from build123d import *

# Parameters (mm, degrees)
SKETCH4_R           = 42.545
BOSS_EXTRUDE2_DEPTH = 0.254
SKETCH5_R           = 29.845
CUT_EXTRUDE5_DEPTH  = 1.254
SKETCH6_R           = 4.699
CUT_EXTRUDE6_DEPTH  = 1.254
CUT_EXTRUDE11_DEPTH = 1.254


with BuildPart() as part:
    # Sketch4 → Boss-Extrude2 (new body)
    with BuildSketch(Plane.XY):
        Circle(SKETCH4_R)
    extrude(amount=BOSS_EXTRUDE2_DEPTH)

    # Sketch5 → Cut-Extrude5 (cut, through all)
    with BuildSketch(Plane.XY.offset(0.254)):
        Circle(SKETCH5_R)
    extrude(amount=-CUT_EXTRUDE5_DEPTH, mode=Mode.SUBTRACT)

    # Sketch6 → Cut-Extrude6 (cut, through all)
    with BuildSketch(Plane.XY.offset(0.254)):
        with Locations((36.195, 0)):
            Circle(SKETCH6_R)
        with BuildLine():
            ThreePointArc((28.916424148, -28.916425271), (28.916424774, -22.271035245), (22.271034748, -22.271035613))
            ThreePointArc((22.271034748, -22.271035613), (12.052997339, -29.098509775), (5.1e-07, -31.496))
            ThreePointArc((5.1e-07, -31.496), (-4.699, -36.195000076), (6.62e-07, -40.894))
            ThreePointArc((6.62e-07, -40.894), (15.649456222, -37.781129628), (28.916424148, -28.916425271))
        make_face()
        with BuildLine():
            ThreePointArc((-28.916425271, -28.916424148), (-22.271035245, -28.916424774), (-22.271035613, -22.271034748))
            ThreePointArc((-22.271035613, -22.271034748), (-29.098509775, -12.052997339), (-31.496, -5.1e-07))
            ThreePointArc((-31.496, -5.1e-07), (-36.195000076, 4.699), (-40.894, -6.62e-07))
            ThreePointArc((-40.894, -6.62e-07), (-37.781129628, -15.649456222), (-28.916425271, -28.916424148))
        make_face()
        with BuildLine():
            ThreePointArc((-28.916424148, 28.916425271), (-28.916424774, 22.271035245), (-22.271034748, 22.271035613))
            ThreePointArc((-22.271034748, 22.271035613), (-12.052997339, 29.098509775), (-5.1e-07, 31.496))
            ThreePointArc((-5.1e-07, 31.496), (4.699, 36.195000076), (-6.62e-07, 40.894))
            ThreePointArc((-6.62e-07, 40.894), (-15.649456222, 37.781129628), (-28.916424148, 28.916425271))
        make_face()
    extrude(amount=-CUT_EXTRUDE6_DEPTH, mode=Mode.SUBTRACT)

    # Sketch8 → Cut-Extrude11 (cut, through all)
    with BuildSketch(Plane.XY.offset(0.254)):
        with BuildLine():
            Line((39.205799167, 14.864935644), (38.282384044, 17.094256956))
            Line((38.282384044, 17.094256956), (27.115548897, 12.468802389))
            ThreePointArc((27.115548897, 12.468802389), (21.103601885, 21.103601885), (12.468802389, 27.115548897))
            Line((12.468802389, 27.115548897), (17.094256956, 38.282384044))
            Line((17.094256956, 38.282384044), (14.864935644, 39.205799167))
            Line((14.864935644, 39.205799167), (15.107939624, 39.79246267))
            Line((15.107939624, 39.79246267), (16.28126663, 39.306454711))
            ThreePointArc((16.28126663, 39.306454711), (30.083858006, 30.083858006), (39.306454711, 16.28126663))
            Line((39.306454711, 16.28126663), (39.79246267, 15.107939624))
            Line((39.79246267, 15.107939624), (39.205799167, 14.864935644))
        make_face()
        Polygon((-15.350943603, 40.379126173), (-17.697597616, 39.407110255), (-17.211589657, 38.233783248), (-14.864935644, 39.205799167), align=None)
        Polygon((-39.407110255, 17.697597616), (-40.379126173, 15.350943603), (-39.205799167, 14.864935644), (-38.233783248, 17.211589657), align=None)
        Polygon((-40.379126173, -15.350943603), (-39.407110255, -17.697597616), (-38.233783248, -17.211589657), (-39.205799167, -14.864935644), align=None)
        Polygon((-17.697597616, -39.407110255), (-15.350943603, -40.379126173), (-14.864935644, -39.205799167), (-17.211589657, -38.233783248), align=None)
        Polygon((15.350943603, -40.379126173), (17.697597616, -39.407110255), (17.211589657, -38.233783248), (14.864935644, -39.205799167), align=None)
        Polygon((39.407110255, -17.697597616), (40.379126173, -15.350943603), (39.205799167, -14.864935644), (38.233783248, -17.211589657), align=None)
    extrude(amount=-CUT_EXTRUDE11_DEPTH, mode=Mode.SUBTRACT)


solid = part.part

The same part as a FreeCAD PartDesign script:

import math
import FreeCAD as App
import Part
import Sketcher
Q = App.Units.Quantity

doc = App.newDocument("Part")
body = doc.addObject("PartDesign::Body", "Body")

# Sketch on XY plane
sketch1 = body.newObject("Sketcher::SketchObject", "Sketch")
sketch1.AttachmentSupport = (doc.getObject("XY_Plane"), [""])
sketch1.MapMode = "FlatFace"
sketch1.addGeometry(Part.Circle(App.Vector(0, 0, 0), App.Vector(0, 0, 1), 42.545), False)
sketch1.addConstraint([
    Sketcher.Constraint("Coincident", 0, 3, -1, 1),
    Sketcher.Constraint("Diameter", 0, Q("3.35 in")),
])
pad1 = body.newObject("PartDesign::Pad", "Pad")
pad1.Profile = sketch1
pad1.Length = Q("0.01 in")

# Sketch on XY plane
sketch2 = body.newObject("Sketcher::SketchObject", "Sketch001")
sketch2.AttachmentSupport = (doc.getObject("XY_Plane"), [""])
sketch2.MapMode = "FlatFace"
sketch2.AttachmentOffset = App.Placement(App.Vector(0, 0, 0.01 * 25.4), App.Rotation())
sketch2.addGeometry(Part.Circle(App.Vector(0, 0, 0), App.Vector(0, 0, 1), 29.845), False)
sketch2.addConstraint([
    Sketcher.Constraint("Coincident", 0, 3, -1, 1),
    Sketcher.Constraint("Diameter", 0, Q("2.35 in")),
])
pocket1 = body.newObject("PartDesign::Pocket", "Pocket")
pocket1.Profile = sketch2
pocket1.Type = "ThroughAll"

# Sketch on XY plane
sketch3 = body.newObject("Sketcher::SketchObject", "Sketch002")
sketch3.AttachmentSupport = (doc.getObject("XY_Plane"), [""])
sketch3.MapMode = "FlatFace"
sketch3.AttachmentOffset = App.Placement(App.Vector(0, 0, 0.01 * 25.4), App.Rotation())
sketch3.addGeometry([
    Part.Circle(App.Vector(36.195, 0, 0), App.Vector(0, 0, 1), 4.699),  # 0
    Part.ArcOfCircle(Part.Circle(App.Vector(25.59373, -25.59373, 0), App.Vector(0, 0, 1), 4.699), math.radians(-45.00001), math.radians(135.000007)),  # 1
    Part.ArcOfCircle(Part.Circle(App.Vector(0, 0, 0), App.Vector(0, 0, 1), 31.496), math.radians(-89.999999), math.radians(-45.000001)),  # 2
    Part.ArcOfCircle(Part.Circle(App.Vector(0, -36.195, 0), App.Vector(0, 0, 1), 4.699), math.radians(89.999994), math.radians(270.000008)),  # 3
    Part.ArcOfCircle(Part.Circle(App.Vector(0, 0, 0), App.Vector(0, 0, 1), 40.894), math.radians(-89.999999), math.radians(-45.000001)),  # 4
    Part.ArcOfCircle(Part.Circle(App.Vector(-25.59373, -25.59373, 0), App.Vector(0, 0, 1), 4.699), math.radians(-135.00001), math.radians(45.000007)),  # 5
    Part.ArcOfCircle(Part.Circle(App.Vector(0, 0, 0), App.Vector(0, 0, 1), 31.496), math.radians(-179.999999), math.radians(-135.000001)),  # 6
    Part.ArcOfCircle(Part.Circle(App.Vector(-36.195, 0, 0), App.Vector(0, 0, 1), 4.699), math.radians(-0.000006), math.radians(180.000008)),  # 7
    Part.ArcOfCircle(Part.Circle(App.Vector(0, 0, 0), App.Vector(0, 0, 1), 40.894), math.radians(-179.999999), math.radians(-135.000001)),  # 8
    Part.ArcOfCircle(Part.Circle(App.Vector(-25.59373, 25.59373, 0), App.Vector(0, 0, 1), 4.699), math.radians(134.99999), math.radians(315.000007)),  # 9
    Part.ArcOfCircle(Part.Circle(App.Vector(0, 0, 0), App.Vector(0, 0, 1), 31.496), math.radians(90.000001), math.radians(134.999999)),  # 10
    Part.ArcOfCircle(Part.Circle(App.Vector(0, 36.195, 0), App.Vector(0, 0, 1), 4.699), math.radians(-90.000006), math.radians(90.000008)),  # 11
    Part.ArcOfCircle(Part.Circle(App.Vector(0, 0, 0), App.Vector(0, 0, 1), 40.894), math.radians(90.000001), math.radians(134.999999)),  # 12
], False)
sketch3.addConstraint([
    Sketcher.Constraint("Tangent", 1, 2, 2, 2),
    Sketcher.Constraint("Tangent", 2, 1, 3, 1),
    Sketcher.Constraint("Tangent", 3, 2, 4, 1),
    Sketcher.Constraint("Tangent", 4, 2, 1, 1),
    Sketcher.Constraint("Tangent", 5, 2, 6, 2),
    Sketcher.Constraint("Tangent", 6, 1, 7, 1),
    Sketcher.Constraint("Tangent", 7, 2, 8, 1),
    Sketcher.Constraint("Tangent", 8, 2, 5, 1),
    Sketcher.Constraint("Tangent", 9, 2, 10, 2),
    Sketcher.Constraint("Tangent", 10, 1, 11, 1),
    Sketcher.Constraint("Tangent", 11, 2, 12, 1),
    Sketcher.Constraint("Tangent", 12, 2, 9, 1),
    Sketcher.Constraint("Coincident", 2, 3, -1, 1),
    Sketcher.Constraint("Coincident", 4, 3, -1, 1),
    Sketcher.Constraint("Coincident", 6, 3, -1, 1),
    Sketcher.Constraint("Coincident", 8, 3, -1, 1),
    Sketcher.Constraint("Coincident", 10, 3, -1, 1),
    Sketcher.Constraint("Coincident", 12, 3, -1, 1),
    Sketcher.Constraint("Equal", 0, 1),
    Sketcher.Constraint("Equal", 3, 5),
    Sketcher.Constraint("Equal", 2, 6),
    Sketcher.Constraint("Equal", 7, 9),
    Sketcher.Constraint("Equal", 6, 10),
    Sketcher.Constraint("Symmetric", 0, 3, 7, 3, -1, 1),
    Sketcher.Constraint("PointOnObject", 0, 3, -1),
    Sketcher.Constraint("PointOnObject", 3, 3, -2),
    Sketcher.Constraint("PointOnObject", 11, 3, -2),
    Sketcher.Constraint("Horizontal", 1, 3, 5, 3),
    Sketcher.Constraint("Vertical", 5, 3, 9, 3),
    Sketcher.Constraint("Diameter", 0, Q("0.37 in")),
    Sketcher.Constraint("Radius", 2, Q("1.24 in")),
    Sketcher.Constraint("DistanceX", -1, 1, 1, 3, 25.59373),
])
pocket2 = body.newObject("PartDesign::Pocket", "Pocket001")
pocket2.Profile = sketch3
pocket2.Type = "ThroughAll"

# Sketch on XY plane
sketch4 = body.newObject("Sketcher::SketchObject", "Sketch003")
sketch4.AttachmentSupport = (doc.getObject("XY_Plane"), [""])
sketch4.MapMode = "FlatFace"
sketch4.AttachmentOffset = App.Placement(App.Vector(0, 0, 0.01 * 25.4), App.Rotation())
sketch4.addGeometry([
    Part.LineSegment(App.Vector(38.282384, 17.094257, 0), App.Vector(39.205799, 14.864936, 0)),  # 0
    Part.LineSegment(App.Vector(39.205799, 14.864936, 0), App.Vector(39.792463, 15.10794, 0)),  # 1
    Part.LineSegment(App.Vector(39.792463, 15.10794, 0), App.Vector(39.306455, 16.281267, 0)),  # 2
    Part.ArcOfCircle(Part.Circle(App.Vector(0, 0, 0), App.Vector(0, 0, 1), 42.545), math.radians(22.5), math.radians(67.5)),  # 3
    Part.LineSegment(App.Vector(16.281267, 39.306455, 0), App.Vector(15.10794, 39.792463, 0)),  # 4
    Part.LineSegment(App.Vector(15.10794, 39.792463, 0), App.Vector(14.864936, 39.205799, 0)),  # 5
    Part.LineSegment(App.Vector(14.864936, 39.205799, 0), App.Vector(17.094257, 38.282384, 0)),  # 6
    Part.LineSegment(App.Vector(17.094257, 38.282384, 0), App.Vector(12.468802, 27.115549, 0)),  # 7
    Part.ArcOfCircle(Part.Circle(App.Vector(0, 0, 0), App.Vector(0, 0, 1), 29.845), math.radians(24.694843), math.radians(65.305157)),  # 8
    Part.LineSegment(App.Vector(27.115549, 12.468802, 0), App.Vector(38.282384, 17.094257, 0)),  # 9
    Part.LineSegment(App.Vector(-15.350944, 40.379126, 0), App.Vector(-17.697598, 39.40711, 0)),  # 10
    Part.LineSegment(App.Vector(-17.697598, 39.40711, 0), App.Vector(-17.21159, 38.233783, 0)),  # 11
    Part.LineSegment(App.Vector(-17.21159, 38.233783, 0), App.Vector(-14.864936, 39.205799, 0)),  # 12
    Part.LineSegment(App.Vector(-14.864936, 39.205799, 0), App.Vector(-15.350944, 40.379126, 0)),  # 13
    Part.LineSegment(App.Vector(-39.40711, 17.697598, 0), App.Vector(-40.379126, 15.350944, 0)),  # 14
    Part.LineSegment(App.Vector(-40.379126, 15.350944, 0), App.Vector(-39.205799, 14.864936, 0)),  # 15
    Part.LineSegment(App.Vector(-39.205799, 14.864936, 0), App.Vector(-38.233783, 17.21159, 0)),  # 16
    Part.LineSegment(App.Vector(-38.233783, 17.21159, 0), App.Vector(-39.40711, 17.697598, 0)),  # 17
    Part.LineSegment(App.Vector(-40.379126, -15.350944, 0), App.Vector(-39.40711, -17.697598, 0)),  # 18
    Part.LineSegment(App.Vector(-39.40711, -17.697598, 0), App.Vector(-38.233783, -17.21159, 0)),  # 19
    Part.LineSegment(App.Vector(-38.233783, -17.21159, 0), App.Vector(-39.205799, -14.864936, 0)),  # 20
    Part.LineSegment(App.Vector(-39.205799, -14.864936, 0), App.Vector(-40.379126, -15.350944, 0)),  # 21
    Part.LineSegment(App.Vector(-17.697598, -39.40711, 0), App.Vector(-15.350944, -40.379126, 0)),  # 22
    Part.LineSegment(App.Vector(-15.350944, -40.379126, 0), App.Vector(-14.864936, -39.205799, 0)),  # 23
    Part.LineSegment(App.Vector(-14.864936, -39.205799, 0), App.Vector(-17.21159, -38.233783, 0)),  # 24
    Part.LineSegment(App.Vector(-17.21159, -38.233783, 0), App.Vector(-17.697598, -39.40711, 0)),  # 25
    Part.LineSegment(App.Vector(15.350944, -40.379126, 0), App.Vector(17.697598, -39.40711, 0)),  # 26
    Part.LineSegment(App.Vector(17.697598, -39.40711, 0), App.Vector(17.21159, -38.233783, 0)),  # 27
    Part.LineSegment(App.Vector(17.21159, -38.233783, 0), App.Vector(14.864936, -39.205799, 0)),  # 28
    Part.LineSegment(App.Vector(14.864936, -39.205799, 0), App.Vector(15.350944, -40.379126, 0)),  # 29
    Part.LineSegment(App.Vector(39.40711, -17.697598, 0), App.Vector(40.379126, -15.350944, 0)),  # 30
    Part.LineSegment(App.Vector(40.379126, -15.350944, 0), App.Vector(39.205799, -14.864936, 0)),  # 31
    Part.LineSegment(App.Vector(39.205799, -14.864936, 0), App.Vector(38.233783, -17.21159, 0)),  # 32
    Part.LineSegment(App.Vector(38.233783, -17.21159, 0), App.Vector(39.40711, -17.697598, 0)),  # 33
], False)
sketch4.addConstraint([
    Sketcher.Constraint("Coincident", 0, 2, 1, 1),
    Sketcher.Constraint("Coincident", 1, 2, 2, 1),
    Sketcher.Constraint("Tangent", 2, 2, 3, 1),
    Sketcher.Constraint("Tangent", 3, 2, 4, 1),
    Sketcher.Constraint("Coincident", 4, 2, 5, 1),
    Sketcher.Constraint("Coincident", 5, 2, 6, 1),
    Sketcher.Constraint("Coincident", 6, 2, 7, 1),
    Sketcher.Constraint("Coincident", 7, 2, 8, 2),
    Sketcher.Constraint("Coincident", 8, 1, 9, 1),
    Sketcher.Constraint("Coincident", 9, 2, 0, 1),
    Sketcher.Constraint("Coincident", 10, 2, 11, 1),
    Sketcher.Constraint("Coincident", 11, 2, 12, 1),
    Sketcher.Constraint("Coincident", 12, 2, 13, 1),
    Sketcher.Constraint("Coincident", 13, 2, 10, 1),
    Sketcher.Constraint("Coincident", 14, 2, 15, 1),
    Sketcher.Constraint("Coincident", 15, 2, 16, 1),
    Sketcher.Constraint("Coincident", 16, 2, 17, 1),
    Sketcher.Constraint("Coincident", 17, 2, 14, 1),
    Sketcher.Constraint("Coincident", 18, 2, 19, 1),
    Sketcher.Constraint("Coincident", 19, 2, 20, 1),
    Sketcher.Constraint("Coincident", 20, 2, 21, 1),
    Sketcher.Constraint("Coincident", 21, 2, 18, 1),
    Sketcher.Constraint("Coincident", 22, 2, 23, 1),
    Sketcher.Constraint("Coincident", 23, 2, 24, 1),
    Sketcher.Constraint("Coincident", 24, 2, 25, 1),
    Sketcher.Constraint("Coincident", 25, 2, 22, 1),
    Sketcher.Constraint("Coincident", 26, 2, 27, 1),
    Sketcher.Constraint("Coincident", 27, 2, 28, 1),
    Sketcher.Constraint("Coincident", 28, 2, 29, 1),
    Sketcher.Constraint("Coincident", 29, 2, 26, 1),
    Sketcher.Constraint("Coincident", 30, 2, 31, 1),
    Sketcher.Constraint("Coincident", 31, 2, 32, 1),
    Sketcher.Constraint("Coincident", 32, 2, 33, 1),
    Sketcher.Constraint("Coincident", 33, 2, 30, 1),
    Sketcher.Constraint("Coincident", 3, 3, -1, 1),
    Sketcher.Constraint("Coincident", 8, 3, -1, 1),
    Sketcher.Constraint("Symmetric", 0, 2, 20, 2, -1, 1),
    Sketcher.Constraint("Symmetric", 5, 2, 23, 2, -1, 1),
    Sketcher.Constraint("Symmetric", 10, 2, 26, 2, -1, 1),
    Sketcher.Constraint("Symmetric", 11, 2, 27, 2, -1, 1),
    Sketcher.Constraint("Symmetric", 12, 2, 28, 2, -1, 1),
    Sketcher.Constraint("Symmetric", 13, 2, 29, 2, -1, 1),
    Sketcher.Constraint("Symmetric", 14, 2, 30, 2, -1, 1),
    Sketcher.Constraint("Symmetric", 15, 2, 31, 2, -1, 1),
    Sketcher.Constraint("Symmetric", 16, 2, 32, 2, -1, 1),
    Sketcher.Constraint("Symmetric", 17, 2, 33, 2, -1, 1),
    Sketcher.Constraint("Symmetric", 5, 2, 12, 2, -2),
    Sketcher.Constraint("Symmetric", 0, 2, 15, 2, -2),
    Sketcher.Constraint("Symmetric", 25, 2, 26, 2, -2),
    Sketcher.Constraint("Symmetric", 24, 2, 27, 2, -2),
    Sketcher.Constraint("Symmetric", 22, 2, 29, 2, -2),
    Sketcher.Constraint("Symmetric", 21, 2, 30, 2, -2),
    Sketcher.Constraint("Symmetric", 19, 2, 32, 2, -2),
    Sketcher.Constraint("Symmetric", 18, 2, 33, 2, -2),
    Sketcher.Constraint("Perpendicular", 0, 1),
    Sketcher.Constraint("Perpendicular", 1, 2),
    Sketcher.Constraint("Perpendicular", 4, 5),
    Sketcher.Constraint("Perpendicular", 5, 6),
    Sketcher.Constraint("Perpendicular", 6, 7),
    Sketcher.Constraint("Perpendicular", 2, 9),
    Sketcher.Constraint("Parallel", 9, 10),
    Sketcher.Constraint("Perpendicular", 10, 11),
    Sketcher.Constraint("Perpendicular", 11, 12),
    Sketcher.Constraint("Perpendicular", 12, 13),
    Sketcher.Constraint("Parallel", 7, 14),
    Sketcher.Constraint("Perpendicular", 14, 15),
    Sketcher.Constraint("Perpendicular", 15, 16),
    Sketcher.Constraint("Perpendicular", 16, 17),
    Sketcher.Constraint("Parallel", 13, 18),
    Sketcher.Constraint("Equal", 2, 4),
    Sketcher.Constraint("Equal", 1, 5),
    Sketcher.Constraint("Equal", 0, 6),
    Sketcher.Constraint("Equal", 4, 11),
    Sketcher.Constraint("Equal", 12, 14),
    Sketcher.Constraint("Equal", 13, 15),
    Sketcher.Constraint("Radius", 3, Q("1.675 in")),
    Sketcher.Constraint("Radius", 8, Q("1.175 in")),
    Sketcher.Constraint("Distance", 10, Q("0.1 in")),
    Sketcher.Constraint("Angle", 0, Q("-67.5 deg")),
    Sketcher.Constraint("Distance", 2, Q("0.05 in")),
    Sketcher.Constraint("Distance", 0, Q("0.095 in")),
    Sketcher.Constraint("Distance", 1, Q("0.025 in")),
])
pocket3 = body.newObject("PartDesign::Pocket", "Pocket002")
pocket3.Profile = sketch4
pocket3.Type = "ThroughAll"

doc.recompute()
